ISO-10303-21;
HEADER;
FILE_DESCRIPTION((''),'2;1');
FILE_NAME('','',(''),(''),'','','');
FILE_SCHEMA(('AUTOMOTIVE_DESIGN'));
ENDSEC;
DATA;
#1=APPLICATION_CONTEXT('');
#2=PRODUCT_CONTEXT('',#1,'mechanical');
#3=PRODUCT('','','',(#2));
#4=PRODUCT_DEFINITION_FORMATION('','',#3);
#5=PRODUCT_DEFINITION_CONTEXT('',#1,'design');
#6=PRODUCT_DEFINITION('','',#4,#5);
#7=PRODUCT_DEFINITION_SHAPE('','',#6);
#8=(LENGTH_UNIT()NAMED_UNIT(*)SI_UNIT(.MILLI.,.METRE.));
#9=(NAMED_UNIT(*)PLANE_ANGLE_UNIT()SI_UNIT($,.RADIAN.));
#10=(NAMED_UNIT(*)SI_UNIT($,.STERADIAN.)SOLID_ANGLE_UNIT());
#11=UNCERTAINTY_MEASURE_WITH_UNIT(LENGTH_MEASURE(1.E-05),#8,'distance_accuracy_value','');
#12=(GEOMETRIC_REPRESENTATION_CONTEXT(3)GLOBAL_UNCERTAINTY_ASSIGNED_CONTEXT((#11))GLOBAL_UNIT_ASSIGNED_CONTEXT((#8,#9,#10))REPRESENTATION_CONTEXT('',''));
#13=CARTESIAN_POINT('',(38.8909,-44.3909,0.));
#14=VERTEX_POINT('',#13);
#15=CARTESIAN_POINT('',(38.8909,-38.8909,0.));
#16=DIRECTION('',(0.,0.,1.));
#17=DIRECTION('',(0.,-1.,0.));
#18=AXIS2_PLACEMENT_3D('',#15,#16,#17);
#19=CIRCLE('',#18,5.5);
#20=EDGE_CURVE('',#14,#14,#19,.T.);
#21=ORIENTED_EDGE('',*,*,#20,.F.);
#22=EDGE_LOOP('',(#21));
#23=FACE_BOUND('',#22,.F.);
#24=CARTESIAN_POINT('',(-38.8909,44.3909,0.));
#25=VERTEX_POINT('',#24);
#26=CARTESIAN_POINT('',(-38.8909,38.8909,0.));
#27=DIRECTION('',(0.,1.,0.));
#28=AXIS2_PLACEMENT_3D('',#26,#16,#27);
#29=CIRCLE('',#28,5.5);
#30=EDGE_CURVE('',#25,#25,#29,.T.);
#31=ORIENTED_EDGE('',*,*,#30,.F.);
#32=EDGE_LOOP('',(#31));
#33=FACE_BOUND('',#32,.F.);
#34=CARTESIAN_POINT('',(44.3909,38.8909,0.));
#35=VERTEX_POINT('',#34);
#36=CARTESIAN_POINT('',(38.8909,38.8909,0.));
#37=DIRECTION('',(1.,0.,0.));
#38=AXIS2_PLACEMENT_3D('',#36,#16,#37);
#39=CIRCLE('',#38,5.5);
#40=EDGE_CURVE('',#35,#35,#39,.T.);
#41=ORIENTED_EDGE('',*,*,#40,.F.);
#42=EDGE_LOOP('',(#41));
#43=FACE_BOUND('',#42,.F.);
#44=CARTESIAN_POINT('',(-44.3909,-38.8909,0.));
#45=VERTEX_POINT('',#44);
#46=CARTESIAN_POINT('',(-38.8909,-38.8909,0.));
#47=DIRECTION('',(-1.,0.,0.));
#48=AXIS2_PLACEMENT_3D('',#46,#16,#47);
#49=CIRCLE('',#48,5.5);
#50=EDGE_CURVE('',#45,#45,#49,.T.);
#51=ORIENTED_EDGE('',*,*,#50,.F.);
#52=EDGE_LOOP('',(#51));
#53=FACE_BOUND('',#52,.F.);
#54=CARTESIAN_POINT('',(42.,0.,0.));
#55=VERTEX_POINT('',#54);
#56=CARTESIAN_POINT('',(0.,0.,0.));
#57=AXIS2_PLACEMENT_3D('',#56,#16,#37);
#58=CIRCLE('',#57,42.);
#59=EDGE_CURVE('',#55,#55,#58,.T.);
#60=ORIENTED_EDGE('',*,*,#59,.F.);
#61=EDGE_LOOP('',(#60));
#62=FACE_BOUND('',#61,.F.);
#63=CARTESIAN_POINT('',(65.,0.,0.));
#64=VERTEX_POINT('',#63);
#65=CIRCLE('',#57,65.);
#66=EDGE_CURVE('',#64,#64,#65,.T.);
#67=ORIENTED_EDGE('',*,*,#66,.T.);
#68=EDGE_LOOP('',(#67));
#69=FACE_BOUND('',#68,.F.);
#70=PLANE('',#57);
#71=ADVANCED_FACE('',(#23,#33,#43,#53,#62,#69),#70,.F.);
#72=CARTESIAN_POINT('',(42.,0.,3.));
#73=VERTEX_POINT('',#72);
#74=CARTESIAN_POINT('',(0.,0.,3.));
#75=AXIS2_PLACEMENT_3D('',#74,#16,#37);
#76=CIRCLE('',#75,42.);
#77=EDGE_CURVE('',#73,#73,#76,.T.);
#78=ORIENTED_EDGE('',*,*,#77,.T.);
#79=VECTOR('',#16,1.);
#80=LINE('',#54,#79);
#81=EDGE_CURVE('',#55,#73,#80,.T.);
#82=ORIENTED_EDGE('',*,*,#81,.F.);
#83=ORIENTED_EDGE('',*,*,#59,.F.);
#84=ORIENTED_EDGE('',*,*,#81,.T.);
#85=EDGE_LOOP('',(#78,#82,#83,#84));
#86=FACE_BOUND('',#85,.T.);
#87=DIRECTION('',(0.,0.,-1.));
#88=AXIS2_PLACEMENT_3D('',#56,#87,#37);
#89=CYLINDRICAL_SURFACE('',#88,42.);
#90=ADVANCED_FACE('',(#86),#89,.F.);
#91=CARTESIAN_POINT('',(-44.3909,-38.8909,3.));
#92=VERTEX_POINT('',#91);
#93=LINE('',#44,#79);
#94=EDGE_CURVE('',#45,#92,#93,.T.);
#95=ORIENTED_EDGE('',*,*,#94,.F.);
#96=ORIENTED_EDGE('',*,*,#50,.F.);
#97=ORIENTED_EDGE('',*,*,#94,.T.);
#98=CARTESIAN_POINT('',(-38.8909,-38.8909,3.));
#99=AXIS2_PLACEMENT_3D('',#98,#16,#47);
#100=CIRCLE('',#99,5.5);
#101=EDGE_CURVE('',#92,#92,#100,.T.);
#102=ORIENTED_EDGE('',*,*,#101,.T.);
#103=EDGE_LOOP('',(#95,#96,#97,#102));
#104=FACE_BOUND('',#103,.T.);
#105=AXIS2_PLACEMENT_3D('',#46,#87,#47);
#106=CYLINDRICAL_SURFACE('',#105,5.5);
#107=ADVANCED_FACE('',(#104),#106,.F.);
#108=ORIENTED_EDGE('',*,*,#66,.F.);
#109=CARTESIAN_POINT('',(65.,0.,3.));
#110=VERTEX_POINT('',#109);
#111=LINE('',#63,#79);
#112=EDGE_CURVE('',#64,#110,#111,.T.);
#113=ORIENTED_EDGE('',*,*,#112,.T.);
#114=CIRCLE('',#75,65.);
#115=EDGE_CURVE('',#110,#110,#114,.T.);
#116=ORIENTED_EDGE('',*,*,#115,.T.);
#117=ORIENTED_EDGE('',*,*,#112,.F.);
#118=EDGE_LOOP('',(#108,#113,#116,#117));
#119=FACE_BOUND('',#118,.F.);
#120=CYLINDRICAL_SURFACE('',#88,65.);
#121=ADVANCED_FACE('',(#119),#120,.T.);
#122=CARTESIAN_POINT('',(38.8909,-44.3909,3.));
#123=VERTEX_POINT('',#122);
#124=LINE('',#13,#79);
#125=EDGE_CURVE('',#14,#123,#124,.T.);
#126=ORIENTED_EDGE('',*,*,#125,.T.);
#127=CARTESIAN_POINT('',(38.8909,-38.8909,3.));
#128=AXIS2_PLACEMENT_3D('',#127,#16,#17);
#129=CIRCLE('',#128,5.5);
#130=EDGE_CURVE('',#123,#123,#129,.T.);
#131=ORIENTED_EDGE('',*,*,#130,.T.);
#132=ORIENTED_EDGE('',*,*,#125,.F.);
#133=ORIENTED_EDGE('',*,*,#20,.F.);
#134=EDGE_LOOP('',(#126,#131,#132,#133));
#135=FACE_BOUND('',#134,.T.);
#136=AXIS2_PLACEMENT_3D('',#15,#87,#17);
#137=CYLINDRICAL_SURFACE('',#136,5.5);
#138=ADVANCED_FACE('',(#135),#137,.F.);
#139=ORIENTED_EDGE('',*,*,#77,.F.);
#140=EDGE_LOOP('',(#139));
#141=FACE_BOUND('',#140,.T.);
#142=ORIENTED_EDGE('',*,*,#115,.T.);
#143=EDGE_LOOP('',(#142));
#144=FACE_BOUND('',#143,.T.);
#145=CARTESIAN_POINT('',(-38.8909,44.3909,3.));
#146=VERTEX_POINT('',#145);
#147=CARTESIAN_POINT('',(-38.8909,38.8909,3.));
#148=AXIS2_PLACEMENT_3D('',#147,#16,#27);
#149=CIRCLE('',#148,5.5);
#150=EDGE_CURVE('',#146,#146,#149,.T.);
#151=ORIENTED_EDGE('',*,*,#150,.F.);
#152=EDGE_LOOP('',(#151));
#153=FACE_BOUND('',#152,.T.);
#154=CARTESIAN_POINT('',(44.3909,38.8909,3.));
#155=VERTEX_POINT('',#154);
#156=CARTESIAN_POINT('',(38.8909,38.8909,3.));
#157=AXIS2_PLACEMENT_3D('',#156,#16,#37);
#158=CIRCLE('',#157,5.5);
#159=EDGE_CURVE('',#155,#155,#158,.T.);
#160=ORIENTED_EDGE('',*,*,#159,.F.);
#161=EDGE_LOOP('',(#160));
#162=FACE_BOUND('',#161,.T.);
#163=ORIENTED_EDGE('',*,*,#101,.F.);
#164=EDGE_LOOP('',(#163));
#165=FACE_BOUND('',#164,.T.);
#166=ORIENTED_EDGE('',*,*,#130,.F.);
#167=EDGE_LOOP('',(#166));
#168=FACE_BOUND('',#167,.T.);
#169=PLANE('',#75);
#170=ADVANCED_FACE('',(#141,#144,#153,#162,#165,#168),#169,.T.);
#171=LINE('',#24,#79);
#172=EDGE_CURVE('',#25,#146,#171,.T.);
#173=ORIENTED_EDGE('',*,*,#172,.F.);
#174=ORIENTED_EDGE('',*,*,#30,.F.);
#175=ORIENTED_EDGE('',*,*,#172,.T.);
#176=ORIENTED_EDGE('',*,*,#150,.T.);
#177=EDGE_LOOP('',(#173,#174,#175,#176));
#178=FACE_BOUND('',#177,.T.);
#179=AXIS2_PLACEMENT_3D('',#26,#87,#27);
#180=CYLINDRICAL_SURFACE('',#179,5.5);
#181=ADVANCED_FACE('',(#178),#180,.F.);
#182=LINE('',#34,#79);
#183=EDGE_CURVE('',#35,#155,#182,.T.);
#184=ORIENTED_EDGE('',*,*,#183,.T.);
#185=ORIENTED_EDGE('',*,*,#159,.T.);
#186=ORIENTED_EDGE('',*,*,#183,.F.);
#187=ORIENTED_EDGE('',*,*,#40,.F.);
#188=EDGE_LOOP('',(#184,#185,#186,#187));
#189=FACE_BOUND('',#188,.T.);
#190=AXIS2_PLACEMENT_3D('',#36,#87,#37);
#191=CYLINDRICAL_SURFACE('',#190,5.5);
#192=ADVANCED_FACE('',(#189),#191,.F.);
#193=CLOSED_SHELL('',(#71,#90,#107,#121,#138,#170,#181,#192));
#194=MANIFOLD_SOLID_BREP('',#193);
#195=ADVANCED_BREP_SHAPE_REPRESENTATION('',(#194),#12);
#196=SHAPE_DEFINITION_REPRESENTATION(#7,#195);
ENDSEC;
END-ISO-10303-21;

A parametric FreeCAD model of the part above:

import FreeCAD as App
import Part
import Sketcher
from FreeCAD import Vector

doc = App.newDocument("Part")
body = doc.addObject("PartDesign::Body", "Body")

# Sketch on XY plane
sketch1 = body.newObject("Sketcher::SketchObject", "Sketch")
sketch1.AttachmentSupport = (doc.getObject("XY_Plane"), [""])
sketch1.MapMode = "FlatFace"
sketch1.addGeometry([
    Part.Circle(Vector(0, 0, 0), Vector(0, 0, 1), 65),
    Part.Circle(Vector(0, 0, 0), Vector(0, 0, 1), 42),
], False)
sketch1.addConstraint([
    Sketcher.Constraint("Coincident", 0, 3, -1, 1),
    Sketcher.Constraint("Coincident", 1, 3, -1, 1),
    Sketcher.Constraint("Diameter", 0, 130.0),
    Sketcher.Constraint("Diameter", 1, 84.0),
])
pad1 = body.newObject("PartDesign::Pad", "Pad")
pad1.Profile = sketch1
pad1.Length = 3

# Sketch on XY plane
sketch2 = body.newObject("Sketcher::SketchObject", "Sketch001")
sketch2.AttachmentSupport = (doc.getObject("XY_Plane"), [""])
sketch2.MapMode = "FlatFace"
sketch2.addGeometry(Part.Circle(Vector(39, 39, 0), Vector(0, 0, 1), 6), False)
sketch2.addConstraint([
    Sketcher.Constraint("Diameter", 0, 11.0),
    Sketcher.Constraint("DistanceX", -1, 1, 0, 3, 38.891),
    Sketcher.Constraint("DistanceY", -1, 1, 0, 3, 38.891),
])
pocket1 = body.newObject("PartDesign::Pocket", "Pocket")
pocket1.Profile = sketch2
pocket1.Length = 3
pocket1.Reversed = True
doc.recompute()

polarpattern = body.newObject("PartDesign::PolarPattern", "PolarPattern")
polarpattern.Originals = [pocket1]
polarpattern.Axis = (doc.getObject("Z_Axis"), [""])
polarpattern.Angle = 360
polarpattern.Occurrences = 4
body.Tip = polarpattern

doc.recompute()
